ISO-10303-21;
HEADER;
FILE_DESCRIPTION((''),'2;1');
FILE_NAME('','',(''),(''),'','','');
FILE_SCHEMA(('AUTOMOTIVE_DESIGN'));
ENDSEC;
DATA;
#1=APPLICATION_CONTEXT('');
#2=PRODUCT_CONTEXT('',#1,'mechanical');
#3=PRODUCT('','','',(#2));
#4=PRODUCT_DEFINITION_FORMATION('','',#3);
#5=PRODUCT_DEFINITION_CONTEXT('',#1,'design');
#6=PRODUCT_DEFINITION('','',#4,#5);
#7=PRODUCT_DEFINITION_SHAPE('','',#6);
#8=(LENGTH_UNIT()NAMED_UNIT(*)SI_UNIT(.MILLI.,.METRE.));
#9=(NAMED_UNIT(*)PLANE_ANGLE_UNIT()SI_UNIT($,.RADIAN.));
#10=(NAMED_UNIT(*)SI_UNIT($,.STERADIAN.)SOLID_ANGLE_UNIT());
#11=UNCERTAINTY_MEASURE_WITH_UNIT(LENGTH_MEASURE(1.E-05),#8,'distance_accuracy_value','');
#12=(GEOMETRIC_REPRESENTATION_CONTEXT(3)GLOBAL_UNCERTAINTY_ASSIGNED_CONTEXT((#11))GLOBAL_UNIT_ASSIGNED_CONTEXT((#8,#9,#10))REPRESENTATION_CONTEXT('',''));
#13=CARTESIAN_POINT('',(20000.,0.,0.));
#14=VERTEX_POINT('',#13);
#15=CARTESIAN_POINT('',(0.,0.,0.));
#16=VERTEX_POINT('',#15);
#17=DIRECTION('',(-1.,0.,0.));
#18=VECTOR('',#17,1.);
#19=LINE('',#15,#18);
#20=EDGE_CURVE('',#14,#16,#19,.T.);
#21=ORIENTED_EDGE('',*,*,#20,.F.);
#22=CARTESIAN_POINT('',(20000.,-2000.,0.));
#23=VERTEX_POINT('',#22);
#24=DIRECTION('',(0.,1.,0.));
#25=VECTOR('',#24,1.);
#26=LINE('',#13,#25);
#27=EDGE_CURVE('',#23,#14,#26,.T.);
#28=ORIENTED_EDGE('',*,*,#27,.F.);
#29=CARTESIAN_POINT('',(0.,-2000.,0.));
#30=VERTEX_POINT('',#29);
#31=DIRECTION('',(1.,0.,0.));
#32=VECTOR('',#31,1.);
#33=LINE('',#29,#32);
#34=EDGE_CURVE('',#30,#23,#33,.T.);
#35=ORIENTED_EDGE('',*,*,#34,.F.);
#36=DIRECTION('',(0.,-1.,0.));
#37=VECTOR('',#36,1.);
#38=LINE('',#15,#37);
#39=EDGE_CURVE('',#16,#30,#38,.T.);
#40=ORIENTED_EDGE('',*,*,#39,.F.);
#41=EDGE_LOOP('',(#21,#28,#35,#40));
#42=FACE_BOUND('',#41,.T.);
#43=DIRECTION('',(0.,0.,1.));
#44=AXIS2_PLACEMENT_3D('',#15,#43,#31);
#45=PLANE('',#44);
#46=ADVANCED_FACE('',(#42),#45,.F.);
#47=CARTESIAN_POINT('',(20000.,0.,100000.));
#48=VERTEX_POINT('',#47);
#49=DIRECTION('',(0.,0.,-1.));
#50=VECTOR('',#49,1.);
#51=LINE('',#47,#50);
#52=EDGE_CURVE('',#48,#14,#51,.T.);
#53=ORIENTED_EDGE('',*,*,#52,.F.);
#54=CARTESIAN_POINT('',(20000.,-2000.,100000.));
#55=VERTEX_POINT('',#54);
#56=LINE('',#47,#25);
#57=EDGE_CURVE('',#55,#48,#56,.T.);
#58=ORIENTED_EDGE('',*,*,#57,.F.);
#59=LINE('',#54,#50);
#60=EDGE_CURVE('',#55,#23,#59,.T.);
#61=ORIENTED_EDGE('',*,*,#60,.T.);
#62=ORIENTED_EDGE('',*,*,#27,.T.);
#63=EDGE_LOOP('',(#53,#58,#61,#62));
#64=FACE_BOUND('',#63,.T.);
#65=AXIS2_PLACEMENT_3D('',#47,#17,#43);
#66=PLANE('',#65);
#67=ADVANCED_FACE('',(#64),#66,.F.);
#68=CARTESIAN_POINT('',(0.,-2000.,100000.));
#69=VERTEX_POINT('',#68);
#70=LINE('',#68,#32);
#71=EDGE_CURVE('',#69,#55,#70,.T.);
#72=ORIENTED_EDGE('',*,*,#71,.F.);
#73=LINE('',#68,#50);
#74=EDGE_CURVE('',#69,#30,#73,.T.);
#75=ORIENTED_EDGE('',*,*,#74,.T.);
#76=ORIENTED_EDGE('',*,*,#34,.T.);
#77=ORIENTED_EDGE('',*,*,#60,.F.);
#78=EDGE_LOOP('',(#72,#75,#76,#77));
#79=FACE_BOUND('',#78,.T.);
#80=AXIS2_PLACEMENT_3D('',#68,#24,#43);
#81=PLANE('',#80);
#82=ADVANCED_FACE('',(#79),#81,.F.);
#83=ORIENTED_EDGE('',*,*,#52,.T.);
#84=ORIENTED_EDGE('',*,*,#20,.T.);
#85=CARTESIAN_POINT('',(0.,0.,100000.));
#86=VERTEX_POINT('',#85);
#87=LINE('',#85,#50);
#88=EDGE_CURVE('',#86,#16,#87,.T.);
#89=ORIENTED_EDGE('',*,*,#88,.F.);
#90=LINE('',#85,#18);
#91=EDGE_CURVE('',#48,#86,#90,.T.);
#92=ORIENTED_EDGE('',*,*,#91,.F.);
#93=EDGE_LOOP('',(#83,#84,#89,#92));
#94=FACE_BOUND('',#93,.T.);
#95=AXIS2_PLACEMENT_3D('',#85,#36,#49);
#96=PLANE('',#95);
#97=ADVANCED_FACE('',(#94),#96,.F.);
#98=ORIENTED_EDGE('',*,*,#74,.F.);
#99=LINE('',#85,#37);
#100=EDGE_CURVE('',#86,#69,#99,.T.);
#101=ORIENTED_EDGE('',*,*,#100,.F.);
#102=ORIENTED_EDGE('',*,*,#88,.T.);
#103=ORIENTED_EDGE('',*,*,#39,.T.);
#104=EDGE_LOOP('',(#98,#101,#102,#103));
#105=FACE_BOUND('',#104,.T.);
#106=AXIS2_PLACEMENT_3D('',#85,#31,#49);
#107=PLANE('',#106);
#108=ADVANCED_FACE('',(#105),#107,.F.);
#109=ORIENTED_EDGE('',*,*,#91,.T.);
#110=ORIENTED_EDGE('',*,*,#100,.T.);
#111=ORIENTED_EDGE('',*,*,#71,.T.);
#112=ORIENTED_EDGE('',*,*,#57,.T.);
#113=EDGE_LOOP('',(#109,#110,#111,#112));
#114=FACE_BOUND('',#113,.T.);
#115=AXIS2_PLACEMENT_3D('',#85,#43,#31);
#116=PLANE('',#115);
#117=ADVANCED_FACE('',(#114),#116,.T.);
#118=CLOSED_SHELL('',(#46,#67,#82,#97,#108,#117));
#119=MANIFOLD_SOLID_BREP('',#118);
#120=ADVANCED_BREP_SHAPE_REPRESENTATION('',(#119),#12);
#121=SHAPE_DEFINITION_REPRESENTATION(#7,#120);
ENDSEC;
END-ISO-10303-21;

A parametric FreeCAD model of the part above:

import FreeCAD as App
import Part
import Sketcher
Q = App.Units.Quantity

doc = App.newDocument("Part")
body = doc.addObject("PartDesign::Body", "Body")

# Sketch on XY plane
sketch1 = body.newObject("Sketcher::SketchObject", "Sketch")
sketch1.AttachmentSupport = (doc.getObject("XY_Plane"), [""])
sketch1.MapMode = "FlatFace"
sketch1.addGeometry([
    Part.LineSegment(App.Vector(0, 0, 0), App.Vector(0, -2000, 0)),
    Part.LineSegment(App.Vector(0, -2000, 0), App.Vector(20000, -2000, 0)),
    Part.LineSegment(App.Vector(20000, -2000, 0), App.Vector(20000, 0, 0)),
    Part.LineSegment(App.Vector(20000, 0, 0), App.Vector(0, 0, 0)),
], False)
sketch1.addConstraint([
    Sketcher.Constraint("Coincident", 0, 2, 1, 1),
    Sketcher.Constraint("Coincident", 1, 2, 2, 1),
    Sketcher.Constraint("Coincident", 2, 2, 3, 1),
    Sketcher.Constraint("Coincident", 3, 2, 0, 1),
    Sketcher.Constraint("Vertical", 0),
    Sketcher.Constraint("Horizontal", 1),
    Sketcher.Constraint("Vertical", 2),
    Sketcher.Constraint("Horizontal", 3),
    Sketcher.Constraint("Coincident", 3, 2, -1, 1),
    Sketcher.Constraint("DistanceX", 1, 1, 1, 2, Q("20000 mm")),
    Sketcher.Constraint("DistanceY", 0, 2, 0, 1, Q("2000 mm")),
])
pad1 = body.newObject("PartDesign::Pad", "Pad")
pad1.Profile = sketch1
pad1.Length = 100000

doc.recompute()
